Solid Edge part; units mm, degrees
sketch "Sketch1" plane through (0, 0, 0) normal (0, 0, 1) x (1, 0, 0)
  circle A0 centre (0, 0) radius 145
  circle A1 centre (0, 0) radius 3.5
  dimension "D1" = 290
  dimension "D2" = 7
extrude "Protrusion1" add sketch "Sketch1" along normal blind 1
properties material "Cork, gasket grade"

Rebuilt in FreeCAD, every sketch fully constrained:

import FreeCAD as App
import Part
import Sketcher
from FreeCAD import Vector
Q = App.Units.Quantity

doc = App.newDocument("Part")
body = doc.addObject("PartDesign::Body", "Body")

# Sketch on XY plane
sketch1 = body.newObject("Sketcher::SketchObject", "Sketch")
sketch1.AttachmentSupport = (doc.getObject("XY_Plane"), [""])
sketch1.MapMode = "FlatFace"
sketch1.addGeometry([
    Part.Circle(Vector(0, 0, 0), Vector(0, 0, 1), 145),
    Part.Circle(Vector(0, 0, 0), Vector(0, 0, 1), 3.5),
], False)
sketch1.addConstraint([
    Sketcher.Constraint("Coincident", 0, 3, -1, 1),
    Sketcher.Constraint("Coincident", 1, 3, -1, 1),
    Sketcher.Constraint("Diameter", 0, Q("290 mm")),
    Sketcher.Constraint("Diameter", 1, Q("7 mm")),
])
pad1 = body.newObject("PartDesign::Pad", "Pad")
pad1.Profile = sketch1
pad1.Length = 1

doc.recompute()
